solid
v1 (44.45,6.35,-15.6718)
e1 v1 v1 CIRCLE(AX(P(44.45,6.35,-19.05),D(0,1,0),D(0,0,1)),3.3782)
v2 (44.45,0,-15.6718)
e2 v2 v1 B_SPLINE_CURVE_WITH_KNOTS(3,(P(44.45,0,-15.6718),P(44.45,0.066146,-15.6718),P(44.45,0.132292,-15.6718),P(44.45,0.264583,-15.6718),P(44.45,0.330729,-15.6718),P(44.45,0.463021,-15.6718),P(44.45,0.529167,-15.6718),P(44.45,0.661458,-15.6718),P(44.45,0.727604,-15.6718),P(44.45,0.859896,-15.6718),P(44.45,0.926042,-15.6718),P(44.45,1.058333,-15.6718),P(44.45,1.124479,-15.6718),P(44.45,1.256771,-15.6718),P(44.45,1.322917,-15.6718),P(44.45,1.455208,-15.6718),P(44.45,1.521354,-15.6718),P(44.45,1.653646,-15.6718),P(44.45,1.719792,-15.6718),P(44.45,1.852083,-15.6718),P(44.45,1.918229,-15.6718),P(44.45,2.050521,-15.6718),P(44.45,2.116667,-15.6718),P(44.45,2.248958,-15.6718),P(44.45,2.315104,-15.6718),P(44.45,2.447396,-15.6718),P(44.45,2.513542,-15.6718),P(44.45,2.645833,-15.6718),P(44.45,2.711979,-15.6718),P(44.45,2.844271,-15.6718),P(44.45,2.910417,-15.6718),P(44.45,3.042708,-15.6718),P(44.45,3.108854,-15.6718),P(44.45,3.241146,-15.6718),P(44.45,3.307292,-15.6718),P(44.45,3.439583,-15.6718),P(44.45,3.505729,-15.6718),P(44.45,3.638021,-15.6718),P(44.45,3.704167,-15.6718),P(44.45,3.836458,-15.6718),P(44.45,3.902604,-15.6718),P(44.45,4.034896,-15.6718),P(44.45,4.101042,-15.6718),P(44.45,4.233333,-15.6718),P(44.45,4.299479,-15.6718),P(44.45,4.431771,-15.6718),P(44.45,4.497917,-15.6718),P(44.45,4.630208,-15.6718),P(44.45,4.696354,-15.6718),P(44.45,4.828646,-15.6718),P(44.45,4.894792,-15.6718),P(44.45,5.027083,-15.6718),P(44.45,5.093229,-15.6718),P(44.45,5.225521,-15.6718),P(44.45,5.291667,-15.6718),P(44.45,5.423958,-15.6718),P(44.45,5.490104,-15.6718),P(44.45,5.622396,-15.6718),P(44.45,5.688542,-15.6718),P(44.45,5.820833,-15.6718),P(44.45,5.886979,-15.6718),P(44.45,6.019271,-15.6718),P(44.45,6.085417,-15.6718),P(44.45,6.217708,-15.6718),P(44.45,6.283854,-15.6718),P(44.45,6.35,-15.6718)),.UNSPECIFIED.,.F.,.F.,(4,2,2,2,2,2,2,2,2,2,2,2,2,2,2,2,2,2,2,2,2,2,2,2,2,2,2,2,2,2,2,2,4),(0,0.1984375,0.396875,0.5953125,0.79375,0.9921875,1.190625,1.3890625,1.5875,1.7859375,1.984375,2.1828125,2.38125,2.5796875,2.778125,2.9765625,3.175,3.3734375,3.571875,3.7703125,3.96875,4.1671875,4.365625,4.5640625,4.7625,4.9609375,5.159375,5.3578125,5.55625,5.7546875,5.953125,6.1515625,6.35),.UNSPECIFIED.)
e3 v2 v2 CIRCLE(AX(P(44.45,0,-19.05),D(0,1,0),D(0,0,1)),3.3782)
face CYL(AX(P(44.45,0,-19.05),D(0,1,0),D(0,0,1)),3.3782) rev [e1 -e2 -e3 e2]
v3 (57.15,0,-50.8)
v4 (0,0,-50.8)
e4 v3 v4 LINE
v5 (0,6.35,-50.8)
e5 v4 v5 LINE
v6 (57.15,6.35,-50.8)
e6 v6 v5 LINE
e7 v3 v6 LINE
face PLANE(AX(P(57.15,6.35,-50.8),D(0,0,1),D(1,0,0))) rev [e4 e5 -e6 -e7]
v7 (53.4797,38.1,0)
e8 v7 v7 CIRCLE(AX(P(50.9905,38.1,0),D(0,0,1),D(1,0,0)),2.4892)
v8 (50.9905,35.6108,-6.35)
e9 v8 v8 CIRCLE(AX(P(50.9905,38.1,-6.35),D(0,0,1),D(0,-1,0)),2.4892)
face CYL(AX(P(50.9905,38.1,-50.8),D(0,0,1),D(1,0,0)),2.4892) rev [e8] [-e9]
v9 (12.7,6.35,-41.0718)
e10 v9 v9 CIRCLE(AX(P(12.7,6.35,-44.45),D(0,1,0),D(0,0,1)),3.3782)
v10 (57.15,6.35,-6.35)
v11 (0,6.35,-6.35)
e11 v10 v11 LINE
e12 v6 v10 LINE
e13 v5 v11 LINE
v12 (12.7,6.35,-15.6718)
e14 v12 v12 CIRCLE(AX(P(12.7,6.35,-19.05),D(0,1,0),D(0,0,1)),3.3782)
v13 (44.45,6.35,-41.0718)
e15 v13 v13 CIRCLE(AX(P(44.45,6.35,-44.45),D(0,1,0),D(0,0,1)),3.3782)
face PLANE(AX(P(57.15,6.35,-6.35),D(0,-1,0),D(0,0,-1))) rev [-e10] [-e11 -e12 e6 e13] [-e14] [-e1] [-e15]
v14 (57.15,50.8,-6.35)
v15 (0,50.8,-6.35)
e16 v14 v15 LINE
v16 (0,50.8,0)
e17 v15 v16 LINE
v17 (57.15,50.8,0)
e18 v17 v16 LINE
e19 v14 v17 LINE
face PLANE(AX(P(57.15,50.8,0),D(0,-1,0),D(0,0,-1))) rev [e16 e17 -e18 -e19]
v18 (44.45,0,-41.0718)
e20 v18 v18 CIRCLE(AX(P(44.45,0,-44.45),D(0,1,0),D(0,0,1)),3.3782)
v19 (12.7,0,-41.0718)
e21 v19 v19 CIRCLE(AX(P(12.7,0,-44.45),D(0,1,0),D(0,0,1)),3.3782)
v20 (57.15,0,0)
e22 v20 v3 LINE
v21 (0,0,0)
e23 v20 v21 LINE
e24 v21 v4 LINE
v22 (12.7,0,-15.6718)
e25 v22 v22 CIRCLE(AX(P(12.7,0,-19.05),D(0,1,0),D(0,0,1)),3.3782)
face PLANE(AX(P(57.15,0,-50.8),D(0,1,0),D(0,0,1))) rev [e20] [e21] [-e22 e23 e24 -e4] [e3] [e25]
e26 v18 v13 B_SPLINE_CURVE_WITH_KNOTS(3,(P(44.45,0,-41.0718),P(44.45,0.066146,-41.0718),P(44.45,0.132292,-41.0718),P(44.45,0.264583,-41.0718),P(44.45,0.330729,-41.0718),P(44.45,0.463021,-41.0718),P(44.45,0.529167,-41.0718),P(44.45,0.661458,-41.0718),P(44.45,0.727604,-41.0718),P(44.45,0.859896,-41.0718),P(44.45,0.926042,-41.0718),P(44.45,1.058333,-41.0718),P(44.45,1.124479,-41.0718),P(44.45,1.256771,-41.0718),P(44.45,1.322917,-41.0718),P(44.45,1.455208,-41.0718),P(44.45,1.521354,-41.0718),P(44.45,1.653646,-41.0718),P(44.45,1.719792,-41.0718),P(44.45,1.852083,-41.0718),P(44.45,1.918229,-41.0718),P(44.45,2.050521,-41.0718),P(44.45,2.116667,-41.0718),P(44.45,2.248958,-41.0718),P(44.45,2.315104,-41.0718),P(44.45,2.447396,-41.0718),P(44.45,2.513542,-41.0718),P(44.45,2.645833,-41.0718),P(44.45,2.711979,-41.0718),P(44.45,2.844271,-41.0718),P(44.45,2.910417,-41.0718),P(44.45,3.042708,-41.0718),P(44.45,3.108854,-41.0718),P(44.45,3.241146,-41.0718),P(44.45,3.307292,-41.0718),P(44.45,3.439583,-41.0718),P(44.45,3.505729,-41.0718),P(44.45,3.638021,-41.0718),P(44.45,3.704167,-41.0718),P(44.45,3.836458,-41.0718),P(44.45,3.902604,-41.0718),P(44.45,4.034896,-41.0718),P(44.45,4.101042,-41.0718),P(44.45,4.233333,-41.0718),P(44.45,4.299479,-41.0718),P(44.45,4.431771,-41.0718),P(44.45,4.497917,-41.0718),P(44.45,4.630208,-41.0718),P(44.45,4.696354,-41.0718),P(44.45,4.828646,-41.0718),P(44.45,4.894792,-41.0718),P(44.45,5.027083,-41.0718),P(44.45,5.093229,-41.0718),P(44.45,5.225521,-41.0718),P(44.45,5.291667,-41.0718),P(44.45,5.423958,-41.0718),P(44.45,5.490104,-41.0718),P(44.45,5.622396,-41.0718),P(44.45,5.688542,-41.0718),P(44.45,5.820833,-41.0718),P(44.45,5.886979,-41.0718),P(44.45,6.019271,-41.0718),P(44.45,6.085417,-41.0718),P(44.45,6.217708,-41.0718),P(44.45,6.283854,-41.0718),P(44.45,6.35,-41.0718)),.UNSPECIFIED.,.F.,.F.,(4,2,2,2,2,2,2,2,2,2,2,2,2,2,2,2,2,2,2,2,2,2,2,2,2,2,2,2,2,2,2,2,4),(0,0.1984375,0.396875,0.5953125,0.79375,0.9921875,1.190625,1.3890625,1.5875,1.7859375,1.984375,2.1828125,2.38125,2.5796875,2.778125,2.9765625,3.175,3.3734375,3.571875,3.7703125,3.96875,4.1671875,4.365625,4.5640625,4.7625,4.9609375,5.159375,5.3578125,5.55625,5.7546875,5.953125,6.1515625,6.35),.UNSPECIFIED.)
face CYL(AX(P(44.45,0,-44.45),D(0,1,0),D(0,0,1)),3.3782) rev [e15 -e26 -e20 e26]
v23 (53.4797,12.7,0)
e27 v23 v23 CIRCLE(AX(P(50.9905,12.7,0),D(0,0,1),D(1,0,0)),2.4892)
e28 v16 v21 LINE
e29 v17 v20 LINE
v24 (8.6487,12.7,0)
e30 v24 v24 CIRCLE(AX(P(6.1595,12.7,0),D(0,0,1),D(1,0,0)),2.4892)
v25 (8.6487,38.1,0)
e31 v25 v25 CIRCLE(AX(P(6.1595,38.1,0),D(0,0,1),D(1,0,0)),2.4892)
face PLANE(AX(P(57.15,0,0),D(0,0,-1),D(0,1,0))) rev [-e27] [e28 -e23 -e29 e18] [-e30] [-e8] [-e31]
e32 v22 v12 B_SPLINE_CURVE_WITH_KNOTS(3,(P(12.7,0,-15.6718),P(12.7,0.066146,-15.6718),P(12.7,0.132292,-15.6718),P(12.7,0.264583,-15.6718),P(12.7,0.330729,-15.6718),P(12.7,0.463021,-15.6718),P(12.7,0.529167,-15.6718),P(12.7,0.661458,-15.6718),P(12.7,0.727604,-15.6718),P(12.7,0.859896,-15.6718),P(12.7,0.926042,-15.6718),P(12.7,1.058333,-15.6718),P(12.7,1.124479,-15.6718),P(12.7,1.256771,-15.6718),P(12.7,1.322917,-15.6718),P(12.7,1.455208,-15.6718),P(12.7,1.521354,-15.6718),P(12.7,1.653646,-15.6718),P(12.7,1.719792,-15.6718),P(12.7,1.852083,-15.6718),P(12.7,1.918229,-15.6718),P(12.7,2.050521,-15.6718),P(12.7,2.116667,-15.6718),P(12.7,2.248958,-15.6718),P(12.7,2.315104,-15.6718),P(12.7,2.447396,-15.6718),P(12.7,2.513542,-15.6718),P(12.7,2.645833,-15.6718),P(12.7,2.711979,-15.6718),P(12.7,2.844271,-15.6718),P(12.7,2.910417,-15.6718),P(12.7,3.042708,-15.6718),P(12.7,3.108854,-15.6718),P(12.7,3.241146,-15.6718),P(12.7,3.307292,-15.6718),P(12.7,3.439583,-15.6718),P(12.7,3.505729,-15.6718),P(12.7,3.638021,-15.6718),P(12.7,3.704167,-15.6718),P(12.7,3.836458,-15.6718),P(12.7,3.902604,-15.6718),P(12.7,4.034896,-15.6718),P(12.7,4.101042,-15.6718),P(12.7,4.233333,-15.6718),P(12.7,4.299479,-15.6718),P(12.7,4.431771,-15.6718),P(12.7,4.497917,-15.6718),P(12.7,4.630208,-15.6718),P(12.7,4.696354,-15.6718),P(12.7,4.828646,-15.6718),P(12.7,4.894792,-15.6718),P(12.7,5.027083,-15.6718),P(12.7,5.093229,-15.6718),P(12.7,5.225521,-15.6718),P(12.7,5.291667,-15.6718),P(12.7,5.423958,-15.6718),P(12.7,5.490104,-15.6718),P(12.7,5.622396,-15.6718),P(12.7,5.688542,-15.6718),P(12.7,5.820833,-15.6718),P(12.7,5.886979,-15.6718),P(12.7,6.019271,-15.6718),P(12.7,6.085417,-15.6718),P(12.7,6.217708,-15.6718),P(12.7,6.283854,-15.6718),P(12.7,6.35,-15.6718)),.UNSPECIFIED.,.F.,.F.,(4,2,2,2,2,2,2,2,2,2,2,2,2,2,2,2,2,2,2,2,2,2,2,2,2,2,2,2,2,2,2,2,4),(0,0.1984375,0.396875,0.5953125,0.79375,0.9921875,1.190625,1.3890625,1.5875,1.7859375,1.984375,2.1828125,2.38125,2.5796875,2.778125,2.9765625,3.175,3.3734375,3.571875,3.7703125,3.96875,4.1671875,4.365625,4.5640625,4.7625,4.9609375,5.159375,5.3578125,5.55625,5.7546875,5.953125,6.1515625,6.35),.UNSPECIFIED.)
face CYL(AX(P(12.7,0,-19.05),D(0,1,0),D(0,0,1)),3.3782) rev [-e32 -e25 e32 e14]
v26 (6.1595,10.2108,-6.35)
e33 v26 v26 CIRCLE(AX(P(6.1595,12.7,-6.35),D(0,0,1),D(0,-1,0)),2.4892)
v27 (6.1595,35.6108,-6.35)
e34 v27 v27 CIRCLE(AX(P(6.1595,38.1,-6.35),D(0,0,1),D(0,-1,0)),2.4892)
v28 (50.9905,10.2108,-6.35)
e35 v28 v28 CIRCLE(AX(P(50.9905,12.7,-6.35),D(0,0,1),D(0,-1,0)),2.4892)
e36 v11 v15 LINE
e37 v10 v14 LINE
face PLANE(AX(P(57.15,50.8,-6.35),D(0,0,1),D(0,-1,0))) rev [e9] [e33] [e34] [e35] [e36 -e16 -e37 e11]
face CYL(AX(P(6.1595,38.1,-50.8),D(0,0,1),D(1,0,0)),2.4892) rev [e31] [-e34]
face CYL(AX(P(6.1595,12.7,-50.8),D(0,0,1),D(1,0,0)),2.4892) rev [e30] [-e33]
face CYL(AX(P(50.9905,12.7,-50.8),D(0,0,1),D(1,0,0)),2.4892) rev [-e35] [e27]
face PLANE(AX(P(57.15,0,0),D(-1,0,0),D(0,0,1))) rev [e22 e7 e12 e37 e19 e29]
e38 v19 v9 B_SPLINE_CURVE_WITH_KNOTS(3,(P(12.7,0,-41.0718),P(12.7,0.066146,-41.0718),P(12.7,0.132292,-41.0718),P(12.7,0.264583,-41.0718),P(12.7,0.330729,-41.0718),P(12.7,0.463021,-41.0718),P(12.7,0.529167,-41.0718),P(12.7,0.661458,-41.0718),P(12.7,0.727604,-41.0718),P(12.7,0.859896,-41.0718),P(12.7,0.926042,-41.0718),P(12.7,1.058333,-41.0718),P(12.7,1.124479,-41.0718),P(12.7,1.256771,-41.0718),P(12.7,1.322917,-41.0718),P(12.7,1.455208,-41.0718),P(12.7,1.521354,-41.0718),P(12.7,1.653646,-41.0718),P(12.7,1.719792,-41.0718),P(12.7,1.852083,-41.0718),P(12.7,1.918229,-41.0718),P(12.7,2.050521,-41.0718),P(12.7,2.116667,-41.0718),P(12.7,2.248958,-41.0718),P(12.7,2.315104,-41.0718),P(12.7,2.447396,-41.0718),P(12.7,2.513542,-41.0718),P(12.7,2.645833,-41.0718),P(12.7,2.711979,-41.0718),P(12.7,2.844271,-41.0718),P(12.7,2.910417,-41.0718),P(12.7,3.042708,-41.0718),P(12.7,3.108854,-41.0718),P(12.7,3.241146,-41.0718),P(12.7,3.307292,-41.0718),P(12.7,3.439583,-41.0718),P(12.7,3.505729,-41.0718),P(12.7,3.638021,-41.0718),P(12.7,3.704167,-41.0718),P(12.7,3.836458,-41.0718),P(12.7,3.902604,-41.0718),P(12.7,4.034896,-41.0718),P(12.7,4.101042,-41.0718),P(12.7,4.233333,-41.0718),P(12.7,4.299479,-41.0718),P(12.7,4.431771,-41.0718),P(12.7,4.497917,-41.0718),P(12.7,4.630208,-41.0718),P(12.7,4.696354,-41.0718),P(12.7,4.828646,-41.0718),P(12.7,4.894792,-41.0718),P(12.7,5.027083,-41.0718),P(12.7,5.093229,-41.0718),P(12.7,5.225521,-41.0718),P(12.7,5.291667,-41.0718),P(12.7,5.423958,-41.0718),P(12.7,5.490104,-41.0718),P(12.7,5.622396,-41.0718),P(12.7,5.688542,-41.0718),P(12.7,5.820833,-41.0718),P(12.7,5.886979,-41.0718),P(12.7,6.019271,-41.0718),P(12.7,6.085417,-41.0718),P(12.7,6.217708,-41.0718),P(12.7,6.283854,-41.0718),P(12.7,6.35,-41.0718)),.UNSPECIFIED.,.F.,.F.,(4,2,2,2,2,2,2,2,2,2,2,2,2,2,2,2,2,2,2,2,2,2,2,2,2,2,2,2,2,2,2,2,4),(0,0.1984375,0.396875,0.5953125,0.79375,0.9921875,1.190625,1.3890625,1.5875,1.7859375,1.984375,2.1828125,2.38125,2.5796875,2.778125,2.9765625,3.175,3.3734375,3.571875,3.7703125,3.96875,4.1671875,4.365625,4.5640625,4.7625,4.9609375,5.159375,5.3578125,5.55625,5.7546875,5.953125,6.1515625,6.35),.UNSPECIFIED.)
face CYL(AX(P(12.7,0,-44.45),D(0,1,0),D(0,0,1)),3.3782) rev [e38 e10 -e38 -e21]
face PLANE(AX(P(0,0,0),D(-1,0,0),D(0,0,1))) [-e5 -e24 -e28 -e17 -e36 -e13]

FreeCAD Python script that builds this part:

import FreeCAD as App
import Part
import Sketcher

V = App.Vector
Q = App.Units.Quantity

doc = App.newDocument("Part")
body = doc.addObject("PartDesign::Body", "Body")

# Sketch on YZ plane
sketch1 = doc.addObject("Sketcher::SketchObject", "Sketch")
body.addObject(sketch1)
sketch1.AttachmentSupport = (doc.YZ_Plane, [""])
sketch1.MapMode = "FlatFace"
sketch1.addGeometry([
    Part.LineSegment(V(51, 0, 0), V(0, 0, 0)),  # 0
    Part.LineSegment(V(0, 0, 0), V(0, -51, 0)),  # 1
    Part.LineSegment(V(0, -51, 0), V(6, -51, 0)),  # 2
    Part.LineSegment(V(6, -51, 0), V(6, -6, 0)),  # 3
    Part.LineSegment(V(6, -6, 0), V(51, -6, 0)),  # 4
    Part.LineSegment(V(51, -6, 0), V(51, 0, 0)),  # 5
], False)
sketch1.addConstraint([
    Sketcher.Constraint("Coincident", 0, 2, 1, 1),
    Sketcher.Constraint("Coincident", 1, 2, 2, 1),
    Sketcher.Constraint("Coincident", 2, 2, 3, 1),
    Sketcher.Constraint("Coincident", 3, 2, 4, 1),
    Sketcher.Constraint("Coincident", 4, 2, 5, 1),
    Sketcher.Constraint("Coincident", 5, 2, 0, 1),
    Sketcher.Constraint("Horizontal", 0),
    Sketcher.Constraint("Vertical", 1),
    Sketcher.Constraint("Horizontal", 2),
    Sketcher.Constraint("Vertical", 3),
    Sketcher.Constraint("Horizontal", 4),
    Sketcher.Constraint("Vertical", 5),
    Sketcher.Constraint("Coincident", 0, 2, -1, 1),
    Sketcher.Constraint("Equal", 0, 1),
    Sketcher.Constraint("Equal", 4, 3),
    Sketcher.Constraint("DistanceX", 0, 2, 0, 1, Q("2 in")),
    Sketcher.Constraint("DistanceX", 2, 1, 2, 2, Q("0.25 in")),
])
pad1 = doc.addObject("PartDesign::Pad", "Pad")
body.addObject(pad1)
pad1.Profile = sketch1
pad1.Length = Q("2.25 in")

# Sketch on XY plane
sketch2 = doc.addObject("Sketcher::SketchObject", "Sketch001")
body.addObject(sketch2)
sketch2.AttachmentSupport = (doc.XY_Plane, [""])
sketch2.MapMode = "FlatFace"
sketch2.addGeometry([
    Part.Circle(V(6.2, 38.1, 0), V(0, 0, 1), 2.5),
    Part.Circle(V(51, 38.1, 0), V(0, 0, 1), 2.5),
    Part.Circle(V(51, 12.7, 0), V(0, 0, 1), 2.5),
    Part.Circle(V(6.2, 12.7, 0), V(0, 0, 1), 2.5),
], False)
sketch2.addConstraint([
    Sketcher.Constraint("Equal", 0, 1),
    Sketcher.Constraint("Equal", 1, 2),
    Sketcher.Constraint("Equal", 2, 3),
    Sketcher.Constraint("Horizontal", 0, 3, 1, 3),
    Sketcher.Constraint("Horizontal", 2, 3, 3, 3),
    Sketcher.Constraint("Vertical", 1, 3, 2, 3),
    Sketcher.Constraint("Vertical", 0, 3, 3, 3),
    Sketcher.Constraint("Diameter", 0, Q("0.196 in")),
    Sketcher.Constraint("DistanceY", 2, 3, 1, 3, Q("1 in")),
    Sketcher.Constraint("DistanceY", -1, 1, 0, 3, Q("1.5 in")),
    Sketcher.Constraint("DistanceX", 0, 3, 1, 3, Q("1.765 in")),
    Sketcher.Constraint("DistanceX", -1, 1, 0, 3, Q("0.2425 in")),
])
pocket1 = doc.addObject("PartDesign::Pocket", "Pocket")
body.addObject(pocket1)
pocket1.Profile = sketch2
pocket1.Type = "ThroughAll"

# Sketch on XZ plane
sketch3 = doc.addObject("Sketcher::SketchObject", "Sketch002")
body.addObject(sketch3)
sketch3.AttachmentSupport = (doc.XZ_Plane, [""])
sketch3.MapMode = "FlatFace"
sketch3.AttachmentOffset = App.Placement(V(0, 0, -0.25 * 25.4), App.Rotation())
sketch3.addGeometry([
    Part.Circle(V(12.7, -19.1, 0), V(0, 0, 1), 3.4),
    Part.Circle(V(12.7, -44.5, 0), V(0, 0, 1), 3.4),
    Part.Circle(V(44.5, -44.5, 0), V(0, 0, 1), 3.4),
    Part.Circle(V(44.5, -19.1, 0), V(0, 0, 1), 3.4),
], False)
sketch3.addConstraint([
    Sketcher.Constraint("Equal", 0, 1),
    Sketcher.Constraint("Equal", 1, 2),
    Sketcher.Constraint("Equal", 2, 3),
    Sketcher.Constraint("Horizontal", 1, 3, 2, 3),
    Sketcher.Constraint("Horizontal", 0, 3, 3, 3),
    Sketcher.Constraint("Vertical", 0, 3, 1, 3),
    Sketcher.Constraint("Vertical", 2, 3, 3, 3),
    Sketcher.Constraint("Diameter", 0, Q("0.266 in")),
    Sketcher.Constraint("DistanceY", 1, 3, 0, 3, Q("1 in")),
    Sketcher.Constraint("DistanceX", -1, 1, 0, 3, Q("0.5 in")),
    Sketcher.Constraint("DistanceY", 0, 3, -1, 1, Q("0.75 in")),
    Sketcher.Constraint("DistanceX", -1, 1, 2, 3, Q("1.75 in")),
])
pocket2 = doc.addObject("PartDesign::Pocket", "Pocket001")
body.addObject(pocket2)
pocket2.Profile = sketch3
pocket2.Type = "ThroughAll"
pocket2.Reversed = True

doc.recompute()
